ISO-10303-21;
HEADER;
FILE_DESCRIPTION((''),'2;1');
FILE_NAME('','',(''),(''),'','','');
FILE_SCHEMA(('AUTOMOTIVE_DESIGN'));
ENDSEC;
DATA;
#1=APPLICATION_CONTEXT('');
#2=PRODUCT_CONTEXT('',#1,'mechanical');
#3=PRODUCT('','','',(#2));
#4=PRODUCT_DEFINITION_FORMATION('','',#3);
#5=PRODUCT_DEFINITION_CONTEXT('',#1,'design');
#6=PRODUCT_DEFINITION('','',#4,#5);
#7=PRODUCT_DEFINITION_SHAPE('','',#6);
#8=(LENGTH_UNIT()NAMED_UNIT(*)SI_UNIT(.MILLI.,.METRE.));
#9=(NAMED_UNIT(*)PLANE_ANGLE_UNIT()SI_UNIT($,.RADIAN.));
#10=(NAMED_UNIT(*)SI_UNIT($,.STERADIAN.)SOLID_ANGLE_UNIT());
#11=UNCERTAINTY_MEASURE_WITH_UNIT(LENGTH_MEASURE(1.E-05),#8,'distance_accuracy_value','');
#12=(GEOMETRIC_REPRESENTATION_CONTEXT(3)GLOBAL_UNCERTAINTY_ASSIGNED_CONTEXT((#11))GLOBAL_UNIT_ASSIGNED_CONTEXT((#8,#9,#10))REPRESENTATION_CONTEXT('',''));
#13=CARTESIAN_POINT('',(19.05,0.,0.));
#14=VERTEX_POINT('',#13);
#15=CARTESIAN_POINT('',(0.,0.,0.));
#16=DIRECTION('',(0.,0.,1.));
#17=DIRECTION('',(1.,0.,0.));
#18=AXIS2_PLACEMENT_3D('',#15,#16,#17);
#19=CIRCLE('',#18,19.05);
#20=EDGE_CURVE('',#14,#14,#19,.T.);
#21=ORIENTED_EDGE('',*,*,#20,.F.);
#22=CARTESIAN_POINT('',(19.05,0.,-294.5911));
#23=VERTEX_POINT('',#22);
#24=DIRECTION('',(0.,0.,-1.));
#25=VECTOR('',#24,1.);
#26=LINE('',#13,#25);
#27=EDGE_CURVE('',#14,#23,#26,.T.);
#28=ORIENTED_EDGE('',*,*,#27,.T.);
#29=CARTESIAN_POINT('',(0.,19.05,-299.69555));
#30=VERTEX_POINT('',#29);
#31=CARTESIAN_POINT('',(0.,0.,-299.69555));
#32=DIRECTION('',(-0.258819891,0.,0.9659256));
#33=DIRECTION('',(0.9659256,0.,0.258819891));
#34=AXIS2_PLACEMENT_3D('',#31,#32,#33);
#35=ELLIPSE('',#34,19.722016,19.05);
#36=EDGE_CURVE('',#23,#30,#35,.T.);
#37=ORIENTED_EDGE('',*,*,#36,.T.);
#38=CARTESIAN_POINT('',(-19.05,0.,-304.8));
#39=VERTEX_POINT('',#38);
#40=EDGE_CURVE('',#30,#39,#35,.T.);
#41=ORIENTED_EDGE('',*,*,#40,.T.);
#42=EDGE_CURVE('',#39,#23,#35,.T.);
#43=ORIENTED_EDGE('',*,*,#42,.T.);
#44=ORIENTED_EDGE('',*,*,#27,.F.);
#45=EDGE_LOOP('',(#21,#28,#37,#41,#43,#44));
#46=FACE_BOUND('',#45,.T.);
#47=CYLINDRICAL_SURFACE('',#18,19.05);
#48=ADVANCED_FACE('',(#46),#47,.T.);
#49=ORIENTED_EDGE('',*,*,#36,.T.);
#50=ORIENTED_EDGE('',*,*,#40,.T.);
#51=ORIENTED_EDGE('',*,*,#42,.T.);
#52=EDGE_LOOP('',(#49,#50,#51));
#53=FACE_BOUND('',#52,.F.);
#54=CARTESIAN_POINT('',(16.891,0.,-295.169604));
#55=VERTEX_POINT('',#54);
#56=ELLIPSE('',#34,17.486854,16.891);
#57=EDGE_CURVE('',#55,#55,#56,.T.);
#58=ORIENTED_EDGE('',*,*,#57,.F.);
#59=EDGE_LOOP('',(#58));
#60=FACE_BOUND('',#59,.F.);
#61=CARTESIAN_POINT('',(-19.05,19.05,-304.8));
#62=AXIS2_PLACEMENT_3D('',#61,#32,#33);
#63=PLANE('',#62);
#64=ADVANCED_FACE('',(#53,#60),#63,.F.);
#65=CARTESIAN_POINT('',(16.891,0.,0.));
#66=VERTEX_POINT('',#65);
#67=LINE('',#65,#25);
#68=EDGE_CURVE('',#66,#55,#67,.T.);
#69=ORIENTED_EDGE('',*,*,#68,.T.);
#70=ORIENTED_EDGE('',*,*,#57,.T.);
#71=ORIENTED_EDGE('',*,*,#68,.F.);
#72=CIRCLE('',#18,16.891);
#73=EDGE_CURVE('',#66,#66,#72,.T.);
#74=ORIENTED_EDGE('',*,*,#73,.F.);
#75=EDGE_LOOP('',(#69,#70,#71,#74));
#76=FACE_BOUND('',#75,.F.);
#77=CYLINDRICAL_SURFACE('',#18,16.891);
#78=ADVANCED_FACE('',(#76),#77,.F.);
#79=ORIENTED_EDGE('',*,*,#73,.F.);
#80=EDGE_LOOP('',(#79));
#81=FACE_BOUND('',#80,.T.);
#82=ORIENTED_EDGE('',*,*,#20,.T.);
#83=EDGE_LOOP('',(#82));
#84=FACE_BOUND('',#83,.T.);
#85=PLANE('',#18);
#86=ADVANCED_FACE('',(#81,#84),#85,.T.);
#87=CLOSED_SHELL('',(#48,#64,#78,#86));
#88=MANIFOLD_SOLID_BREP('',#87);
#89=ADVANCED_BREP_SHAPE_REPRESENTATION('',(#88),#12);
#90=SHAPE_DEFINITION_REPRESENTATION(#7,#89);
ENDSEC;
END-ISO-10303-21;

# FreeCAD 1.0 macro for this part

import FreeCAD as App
import Part
import Sketcher

V = App.Vector
Q = App.Units.Quantity

doc = App.newDocument("Part")
body = doc.addObject("PartDesign::Body", "Body")

sketch1 = body.newObject("Sketcher::SketchObject", "Sketch")
sketch1.AttachmentSupport = (doc.getObject("XY_Plane"), [""])
sketch1.MapMode = "FlatFace"
sketch1.addGeometry(Part.Circle(V(0, 0, 0), V(0, 0, 1), 19), False)
sketch1.addGeometry(Part.Circle(V(0, 0, 0), V(0, 0, 1), 17), False)
sketch1.addConstraint(Sketcher.Constraint("Coincident", 0, 3, -1, 1))
sketch1.addConstraint(Sketcher.Constraint("Coincident", 1, 3, -1, 1))
sketch1.addConstraint(Sketcher.Constraint("Diameter", 0, Q("1.5 in")))
sketch1.addConstraint(Sketcher.Constraint("Diameter", 1, Q("1.33 in")))
pad1 = body.newObject("PartDesign::Pad", "Pad")
pad1.Profile = sketch1
pad1.Length = Q("12 in")
pad1.Reversed = True

sketch2 = body.newObject("Sketcher::SketchObject", "Sketch001")
sketch2.AttachmentSupport = (doc.getObject("XZ_Plane"), [""])
sketch2.MapMode = "FlatFace"
sketch2.AttachmentOffset = App.Placement(V(0, 0, -0.75 * 25.4), App.Rotation())
sketch2.addGeometry(Part.LineSegment(V(19, -295, 0), V(19, -305, 0)), False)
sketch2.addGeometry(Part.LineSegment(V(19, -305, 0), V(-19, -305, 0)), False)
sketch2.addGeometry(Part.LineSegment(V(-19, -305, 0), V(19, -295, 0)), False)
sketch2.addConstraint(Sketcher.Constraint("Coincident", 0, 2, 1, 1))
sketch2.addConstraint(Sketcher.Constraint("Coincident", 1, 2, 2, 1))
sketch2.addConstraint(Sketcher.Constraint("Coincident", 2, 2, 0, 1))
sketch2.addConstraint(Sketcher.Constraint("Vertical", 0))
sketch2.addConstraint(Sketcher.Constraint("Horizontal", 1))
sketch2.addConstraint(Sketcher.Constraint("Angle", 2, Q("15 deg")))
sketch2.addConstraint(Sketcher.Constraint("DistanceX", 1, 2, 1, 1, Q("1.5 in")))
sketch2.addConstraint(Sketcher.Constraint("DistanceY", 0, 2, -1, 1, Q("12 in")))
sketch2.addConstraint(Sketcher.Constraint("DistanceX", -1, 1, 0, 2, Q("0.75 in")))
pocket1 = body.newObject("PartDesign::Pocket", "Pocket")
pocket1.Profile = sketch2
pocket1.Length = Q("2 in")
pocket1.Reversed = True

doc.recompute()
